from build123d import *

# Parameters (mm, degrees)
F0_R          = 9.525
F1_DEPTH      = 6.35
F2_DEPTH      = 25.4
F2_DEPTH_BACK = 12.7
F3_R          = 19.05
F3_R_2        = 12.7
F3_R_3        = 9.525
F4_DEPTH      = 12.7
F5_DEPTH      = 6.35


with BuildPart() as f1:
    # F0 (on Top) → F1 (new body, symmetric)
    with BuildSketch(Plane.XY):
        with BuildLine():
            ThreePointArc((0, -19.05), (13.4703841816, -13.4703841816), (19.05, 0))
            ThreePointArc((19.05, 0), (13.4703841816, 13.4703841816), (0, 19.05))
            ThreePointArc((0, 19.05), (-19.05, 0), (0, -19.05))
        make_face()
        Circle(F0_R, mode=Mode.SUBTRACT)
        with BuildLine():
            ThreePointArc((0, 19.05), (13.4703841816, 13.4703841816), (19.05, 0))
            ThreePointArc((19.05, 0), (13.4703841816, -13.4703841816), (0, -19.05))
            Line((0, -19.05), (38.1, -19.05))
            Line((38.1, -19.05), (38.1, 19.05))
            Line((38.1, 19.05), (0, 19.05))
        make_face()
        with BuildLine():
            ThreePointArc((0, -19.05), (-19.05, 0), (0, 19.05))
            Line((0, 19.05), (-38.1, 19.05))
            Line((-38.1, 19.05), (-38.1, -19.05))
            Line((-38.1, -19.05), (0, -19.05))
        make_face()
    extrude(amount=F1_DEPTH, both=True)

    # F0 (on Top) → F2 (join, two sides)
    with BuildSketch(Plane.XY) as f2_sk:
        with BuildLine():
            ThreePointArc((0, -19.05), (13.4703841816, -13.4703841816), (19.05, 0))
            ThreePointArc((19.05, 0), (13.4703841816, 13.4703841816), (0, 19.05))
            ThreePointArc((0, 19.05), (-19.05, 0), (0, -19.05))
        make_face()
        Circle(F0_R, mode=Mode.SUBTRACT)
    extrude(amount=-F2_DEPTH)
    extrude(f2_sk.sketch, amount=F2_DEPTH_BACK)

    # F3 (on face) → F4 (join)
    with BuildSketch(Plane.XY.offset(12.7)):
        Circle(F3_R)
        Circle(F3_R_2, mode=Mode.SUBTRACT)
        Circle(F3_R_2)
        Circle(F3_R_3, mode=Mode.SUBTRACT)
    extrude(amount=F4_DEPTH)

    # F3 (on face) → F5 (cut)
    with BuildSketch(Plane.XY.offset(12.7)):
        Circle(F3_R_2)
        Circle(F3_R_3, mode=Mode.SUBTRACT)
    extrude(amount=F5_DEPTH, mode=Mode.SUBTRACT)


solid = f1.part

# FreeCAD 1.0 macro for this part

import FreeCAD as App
import Part
import Sketcher
from FreeCAD import Vector
Q = App.Units.Quantity


def add_polygon(sketch, points):
    """Adds a closed chain of lines whose ends are joined by coincident constraints."""
    first, n = sketch.GeometryCount, len(points)
    for a, b in zip(points, points[1:] + points[:1]):
        sketch.addGeometry(Part.LineSegment(App.Vector(*a, 0), App.Vector(*b, 0)), False)
    for i in range(n):
        sketch.addConstraint(Sketcher.Constraint("Coincident", first + i, 2, first + (i + 1) % n, 1))

doc = App.newDocument("Part")
body = doc.addObject("PartDesign::Body", "Body")

# Sketch on XY plane
sketch1 = body.newObject("Sketcher::SketchObject", "Sketch")
sketch1.AttachmentSupport = (doc.getObject("XY_Plane"), [""])
sketch1.MapMode = "FlatFace"
add_polygon(sketch1, [(38, -19), (38, 19), (-38, 19), (-38, -19)])  # lines 0-3
sketch1.addGeometry(Part.Circle(Vector(0, 0, 0), Vector(0, 0, 1), 10), False)  # 4
sketch1.addConstraint([
    Sketcher.Constraint("Vertical", 0),
    Sketcher.Constraint("Horizontal", 1),
    Sketcher.Constraint("Vertical", 2),
    Sketcher.Constraint("Horizontal", 3),
    Sketcher.Constraint("Coincident", 4, 3, -1, 1),
    Sketcher.Constraint("Symmetric", 0, 2, 2, 2, -1, 1),
    Sketcher.Constraint("Diameter", 4, Q("0.75 in")),
    Sketcher.Constraint("DistanceX", 1, 2, 1, 1, Q("3 in")),
    Sketcher.Constraint("DistanceY", 0, 1, 0, 2, Q("1.5 in")),
])
pad1 = body.newObject("PartDesign::Pad", "Pad")
pad1.Profile = sketch1
pad1.Length = Q("0.5 in")
pad1.Midplane = True

# Sketch on XY plane
sketch2 = body.newObject("Sketcher::SketchObject", "Sketch001")
sketch2.AttachmentSupport = (doc.getObject("XY_Plane"), [""])
sketch2.MapMode = "FlatFace"
sketch2.addGeometry([
    Part.Circle(Vector(0, 0, 0), Vector(0, 0, 1), 19),
    Part.Circle(Vector(0, 0, 0), Vector(0, 0, 1), 10),
], False)
sketch2.addConstraint([
    Sketcher.Constraint("Coincident", 0, 3, -1, 1),
    Sketcher.Constraint("Coincident", 1, 3, -1, 1),
    Sketcher.Constraint("Diameter", 0, Q("1.5 in")),
    Sketcher.Constraint("Diameter", 1, Q("0.75 in")),
])
pad2 = body.newObject("PartDesign::Pad", "Pad001")
pad2.Profile = sketch2
pad2.Type = "TwoLengths"
pad2.Length = Q("1 in")
pad2.Length2 = Q("0.5 in")
pad2.Reversed = True

# Sketch on XY plane
sketch3 = body.newObject("Sketcher::SketchObject", "Sketch002")
sketch3.AttachmentSupport = (doc.getObject("XY_Plane"), [""])
sketch3.MapMode = "FlatFace"
sketch3.AttachmentOffset = App.Placement(Vector(0, 0, 0.5 * 25.4), App.Rotation())
sketch3.addGeometry([
    Part.Circle(Vector(0, 0, 0), Vector(0, 0, 1), 19),
    Part.Circle(Vector(0, 0, 0), Vector(0, 0, 1), 10),
], False)
sketch3.addConstraint([
    Sketcher.Constraint("Coincident", 0, 3, -1, 1),
    Sketcher.Constraint("Coincident", 1, 3, -1, 1),
    Sketcher.Constraint("Diameter", 0, Q("1.5 in")),
    Sketcher.Constraint("Diameter", 1, Q("0.75 in")),
])
pad3 = body.newObject("PartDesign::Pad", "Pad002")
pad3.Profile = sketch3
pad3.Length = Q("0.5 in")

# Sketch on XY plane
sketch4 = body.newObject("Sketcher::SketchObject", "Sketch003")
sketch4.AttachmentSupport = (doc.getObject("XY_Plane"), [""])
sketch4.MapMode = "FlatFace"
sketch4.AttachmentOffset = App.Placement(Vector(0, 0, 0.5 * 25.4), App.Rotation())
sketch4.addGeometry([
    Part.Circle(Vector(0, 0, 0), Vector(0, 0, 1), 13),
    Part.Circle(Vector(0, 0, 0), Vector(0, 0, 1), 10),
], False)
sketch4.addConstraint([
    Sketcher.Constraint("Coincident", 0, 3, -1, 1),
    Sketcher.Constraint("Coincident", 1, 3, -1, 1),
    Sketcher.Constraint("Diameter", 0, Q("1 in")),
    Sketcher.Constraint("Diameter", 1, Q("0.75 in")),
])
pocket1 = body.newObject("PartDesign::Pocket", "Pocket")
pocket1.Profile = sketch4
pocket1.Length = Q("0.25 in")
pocket1.Reversed = True

doc.recompute()
